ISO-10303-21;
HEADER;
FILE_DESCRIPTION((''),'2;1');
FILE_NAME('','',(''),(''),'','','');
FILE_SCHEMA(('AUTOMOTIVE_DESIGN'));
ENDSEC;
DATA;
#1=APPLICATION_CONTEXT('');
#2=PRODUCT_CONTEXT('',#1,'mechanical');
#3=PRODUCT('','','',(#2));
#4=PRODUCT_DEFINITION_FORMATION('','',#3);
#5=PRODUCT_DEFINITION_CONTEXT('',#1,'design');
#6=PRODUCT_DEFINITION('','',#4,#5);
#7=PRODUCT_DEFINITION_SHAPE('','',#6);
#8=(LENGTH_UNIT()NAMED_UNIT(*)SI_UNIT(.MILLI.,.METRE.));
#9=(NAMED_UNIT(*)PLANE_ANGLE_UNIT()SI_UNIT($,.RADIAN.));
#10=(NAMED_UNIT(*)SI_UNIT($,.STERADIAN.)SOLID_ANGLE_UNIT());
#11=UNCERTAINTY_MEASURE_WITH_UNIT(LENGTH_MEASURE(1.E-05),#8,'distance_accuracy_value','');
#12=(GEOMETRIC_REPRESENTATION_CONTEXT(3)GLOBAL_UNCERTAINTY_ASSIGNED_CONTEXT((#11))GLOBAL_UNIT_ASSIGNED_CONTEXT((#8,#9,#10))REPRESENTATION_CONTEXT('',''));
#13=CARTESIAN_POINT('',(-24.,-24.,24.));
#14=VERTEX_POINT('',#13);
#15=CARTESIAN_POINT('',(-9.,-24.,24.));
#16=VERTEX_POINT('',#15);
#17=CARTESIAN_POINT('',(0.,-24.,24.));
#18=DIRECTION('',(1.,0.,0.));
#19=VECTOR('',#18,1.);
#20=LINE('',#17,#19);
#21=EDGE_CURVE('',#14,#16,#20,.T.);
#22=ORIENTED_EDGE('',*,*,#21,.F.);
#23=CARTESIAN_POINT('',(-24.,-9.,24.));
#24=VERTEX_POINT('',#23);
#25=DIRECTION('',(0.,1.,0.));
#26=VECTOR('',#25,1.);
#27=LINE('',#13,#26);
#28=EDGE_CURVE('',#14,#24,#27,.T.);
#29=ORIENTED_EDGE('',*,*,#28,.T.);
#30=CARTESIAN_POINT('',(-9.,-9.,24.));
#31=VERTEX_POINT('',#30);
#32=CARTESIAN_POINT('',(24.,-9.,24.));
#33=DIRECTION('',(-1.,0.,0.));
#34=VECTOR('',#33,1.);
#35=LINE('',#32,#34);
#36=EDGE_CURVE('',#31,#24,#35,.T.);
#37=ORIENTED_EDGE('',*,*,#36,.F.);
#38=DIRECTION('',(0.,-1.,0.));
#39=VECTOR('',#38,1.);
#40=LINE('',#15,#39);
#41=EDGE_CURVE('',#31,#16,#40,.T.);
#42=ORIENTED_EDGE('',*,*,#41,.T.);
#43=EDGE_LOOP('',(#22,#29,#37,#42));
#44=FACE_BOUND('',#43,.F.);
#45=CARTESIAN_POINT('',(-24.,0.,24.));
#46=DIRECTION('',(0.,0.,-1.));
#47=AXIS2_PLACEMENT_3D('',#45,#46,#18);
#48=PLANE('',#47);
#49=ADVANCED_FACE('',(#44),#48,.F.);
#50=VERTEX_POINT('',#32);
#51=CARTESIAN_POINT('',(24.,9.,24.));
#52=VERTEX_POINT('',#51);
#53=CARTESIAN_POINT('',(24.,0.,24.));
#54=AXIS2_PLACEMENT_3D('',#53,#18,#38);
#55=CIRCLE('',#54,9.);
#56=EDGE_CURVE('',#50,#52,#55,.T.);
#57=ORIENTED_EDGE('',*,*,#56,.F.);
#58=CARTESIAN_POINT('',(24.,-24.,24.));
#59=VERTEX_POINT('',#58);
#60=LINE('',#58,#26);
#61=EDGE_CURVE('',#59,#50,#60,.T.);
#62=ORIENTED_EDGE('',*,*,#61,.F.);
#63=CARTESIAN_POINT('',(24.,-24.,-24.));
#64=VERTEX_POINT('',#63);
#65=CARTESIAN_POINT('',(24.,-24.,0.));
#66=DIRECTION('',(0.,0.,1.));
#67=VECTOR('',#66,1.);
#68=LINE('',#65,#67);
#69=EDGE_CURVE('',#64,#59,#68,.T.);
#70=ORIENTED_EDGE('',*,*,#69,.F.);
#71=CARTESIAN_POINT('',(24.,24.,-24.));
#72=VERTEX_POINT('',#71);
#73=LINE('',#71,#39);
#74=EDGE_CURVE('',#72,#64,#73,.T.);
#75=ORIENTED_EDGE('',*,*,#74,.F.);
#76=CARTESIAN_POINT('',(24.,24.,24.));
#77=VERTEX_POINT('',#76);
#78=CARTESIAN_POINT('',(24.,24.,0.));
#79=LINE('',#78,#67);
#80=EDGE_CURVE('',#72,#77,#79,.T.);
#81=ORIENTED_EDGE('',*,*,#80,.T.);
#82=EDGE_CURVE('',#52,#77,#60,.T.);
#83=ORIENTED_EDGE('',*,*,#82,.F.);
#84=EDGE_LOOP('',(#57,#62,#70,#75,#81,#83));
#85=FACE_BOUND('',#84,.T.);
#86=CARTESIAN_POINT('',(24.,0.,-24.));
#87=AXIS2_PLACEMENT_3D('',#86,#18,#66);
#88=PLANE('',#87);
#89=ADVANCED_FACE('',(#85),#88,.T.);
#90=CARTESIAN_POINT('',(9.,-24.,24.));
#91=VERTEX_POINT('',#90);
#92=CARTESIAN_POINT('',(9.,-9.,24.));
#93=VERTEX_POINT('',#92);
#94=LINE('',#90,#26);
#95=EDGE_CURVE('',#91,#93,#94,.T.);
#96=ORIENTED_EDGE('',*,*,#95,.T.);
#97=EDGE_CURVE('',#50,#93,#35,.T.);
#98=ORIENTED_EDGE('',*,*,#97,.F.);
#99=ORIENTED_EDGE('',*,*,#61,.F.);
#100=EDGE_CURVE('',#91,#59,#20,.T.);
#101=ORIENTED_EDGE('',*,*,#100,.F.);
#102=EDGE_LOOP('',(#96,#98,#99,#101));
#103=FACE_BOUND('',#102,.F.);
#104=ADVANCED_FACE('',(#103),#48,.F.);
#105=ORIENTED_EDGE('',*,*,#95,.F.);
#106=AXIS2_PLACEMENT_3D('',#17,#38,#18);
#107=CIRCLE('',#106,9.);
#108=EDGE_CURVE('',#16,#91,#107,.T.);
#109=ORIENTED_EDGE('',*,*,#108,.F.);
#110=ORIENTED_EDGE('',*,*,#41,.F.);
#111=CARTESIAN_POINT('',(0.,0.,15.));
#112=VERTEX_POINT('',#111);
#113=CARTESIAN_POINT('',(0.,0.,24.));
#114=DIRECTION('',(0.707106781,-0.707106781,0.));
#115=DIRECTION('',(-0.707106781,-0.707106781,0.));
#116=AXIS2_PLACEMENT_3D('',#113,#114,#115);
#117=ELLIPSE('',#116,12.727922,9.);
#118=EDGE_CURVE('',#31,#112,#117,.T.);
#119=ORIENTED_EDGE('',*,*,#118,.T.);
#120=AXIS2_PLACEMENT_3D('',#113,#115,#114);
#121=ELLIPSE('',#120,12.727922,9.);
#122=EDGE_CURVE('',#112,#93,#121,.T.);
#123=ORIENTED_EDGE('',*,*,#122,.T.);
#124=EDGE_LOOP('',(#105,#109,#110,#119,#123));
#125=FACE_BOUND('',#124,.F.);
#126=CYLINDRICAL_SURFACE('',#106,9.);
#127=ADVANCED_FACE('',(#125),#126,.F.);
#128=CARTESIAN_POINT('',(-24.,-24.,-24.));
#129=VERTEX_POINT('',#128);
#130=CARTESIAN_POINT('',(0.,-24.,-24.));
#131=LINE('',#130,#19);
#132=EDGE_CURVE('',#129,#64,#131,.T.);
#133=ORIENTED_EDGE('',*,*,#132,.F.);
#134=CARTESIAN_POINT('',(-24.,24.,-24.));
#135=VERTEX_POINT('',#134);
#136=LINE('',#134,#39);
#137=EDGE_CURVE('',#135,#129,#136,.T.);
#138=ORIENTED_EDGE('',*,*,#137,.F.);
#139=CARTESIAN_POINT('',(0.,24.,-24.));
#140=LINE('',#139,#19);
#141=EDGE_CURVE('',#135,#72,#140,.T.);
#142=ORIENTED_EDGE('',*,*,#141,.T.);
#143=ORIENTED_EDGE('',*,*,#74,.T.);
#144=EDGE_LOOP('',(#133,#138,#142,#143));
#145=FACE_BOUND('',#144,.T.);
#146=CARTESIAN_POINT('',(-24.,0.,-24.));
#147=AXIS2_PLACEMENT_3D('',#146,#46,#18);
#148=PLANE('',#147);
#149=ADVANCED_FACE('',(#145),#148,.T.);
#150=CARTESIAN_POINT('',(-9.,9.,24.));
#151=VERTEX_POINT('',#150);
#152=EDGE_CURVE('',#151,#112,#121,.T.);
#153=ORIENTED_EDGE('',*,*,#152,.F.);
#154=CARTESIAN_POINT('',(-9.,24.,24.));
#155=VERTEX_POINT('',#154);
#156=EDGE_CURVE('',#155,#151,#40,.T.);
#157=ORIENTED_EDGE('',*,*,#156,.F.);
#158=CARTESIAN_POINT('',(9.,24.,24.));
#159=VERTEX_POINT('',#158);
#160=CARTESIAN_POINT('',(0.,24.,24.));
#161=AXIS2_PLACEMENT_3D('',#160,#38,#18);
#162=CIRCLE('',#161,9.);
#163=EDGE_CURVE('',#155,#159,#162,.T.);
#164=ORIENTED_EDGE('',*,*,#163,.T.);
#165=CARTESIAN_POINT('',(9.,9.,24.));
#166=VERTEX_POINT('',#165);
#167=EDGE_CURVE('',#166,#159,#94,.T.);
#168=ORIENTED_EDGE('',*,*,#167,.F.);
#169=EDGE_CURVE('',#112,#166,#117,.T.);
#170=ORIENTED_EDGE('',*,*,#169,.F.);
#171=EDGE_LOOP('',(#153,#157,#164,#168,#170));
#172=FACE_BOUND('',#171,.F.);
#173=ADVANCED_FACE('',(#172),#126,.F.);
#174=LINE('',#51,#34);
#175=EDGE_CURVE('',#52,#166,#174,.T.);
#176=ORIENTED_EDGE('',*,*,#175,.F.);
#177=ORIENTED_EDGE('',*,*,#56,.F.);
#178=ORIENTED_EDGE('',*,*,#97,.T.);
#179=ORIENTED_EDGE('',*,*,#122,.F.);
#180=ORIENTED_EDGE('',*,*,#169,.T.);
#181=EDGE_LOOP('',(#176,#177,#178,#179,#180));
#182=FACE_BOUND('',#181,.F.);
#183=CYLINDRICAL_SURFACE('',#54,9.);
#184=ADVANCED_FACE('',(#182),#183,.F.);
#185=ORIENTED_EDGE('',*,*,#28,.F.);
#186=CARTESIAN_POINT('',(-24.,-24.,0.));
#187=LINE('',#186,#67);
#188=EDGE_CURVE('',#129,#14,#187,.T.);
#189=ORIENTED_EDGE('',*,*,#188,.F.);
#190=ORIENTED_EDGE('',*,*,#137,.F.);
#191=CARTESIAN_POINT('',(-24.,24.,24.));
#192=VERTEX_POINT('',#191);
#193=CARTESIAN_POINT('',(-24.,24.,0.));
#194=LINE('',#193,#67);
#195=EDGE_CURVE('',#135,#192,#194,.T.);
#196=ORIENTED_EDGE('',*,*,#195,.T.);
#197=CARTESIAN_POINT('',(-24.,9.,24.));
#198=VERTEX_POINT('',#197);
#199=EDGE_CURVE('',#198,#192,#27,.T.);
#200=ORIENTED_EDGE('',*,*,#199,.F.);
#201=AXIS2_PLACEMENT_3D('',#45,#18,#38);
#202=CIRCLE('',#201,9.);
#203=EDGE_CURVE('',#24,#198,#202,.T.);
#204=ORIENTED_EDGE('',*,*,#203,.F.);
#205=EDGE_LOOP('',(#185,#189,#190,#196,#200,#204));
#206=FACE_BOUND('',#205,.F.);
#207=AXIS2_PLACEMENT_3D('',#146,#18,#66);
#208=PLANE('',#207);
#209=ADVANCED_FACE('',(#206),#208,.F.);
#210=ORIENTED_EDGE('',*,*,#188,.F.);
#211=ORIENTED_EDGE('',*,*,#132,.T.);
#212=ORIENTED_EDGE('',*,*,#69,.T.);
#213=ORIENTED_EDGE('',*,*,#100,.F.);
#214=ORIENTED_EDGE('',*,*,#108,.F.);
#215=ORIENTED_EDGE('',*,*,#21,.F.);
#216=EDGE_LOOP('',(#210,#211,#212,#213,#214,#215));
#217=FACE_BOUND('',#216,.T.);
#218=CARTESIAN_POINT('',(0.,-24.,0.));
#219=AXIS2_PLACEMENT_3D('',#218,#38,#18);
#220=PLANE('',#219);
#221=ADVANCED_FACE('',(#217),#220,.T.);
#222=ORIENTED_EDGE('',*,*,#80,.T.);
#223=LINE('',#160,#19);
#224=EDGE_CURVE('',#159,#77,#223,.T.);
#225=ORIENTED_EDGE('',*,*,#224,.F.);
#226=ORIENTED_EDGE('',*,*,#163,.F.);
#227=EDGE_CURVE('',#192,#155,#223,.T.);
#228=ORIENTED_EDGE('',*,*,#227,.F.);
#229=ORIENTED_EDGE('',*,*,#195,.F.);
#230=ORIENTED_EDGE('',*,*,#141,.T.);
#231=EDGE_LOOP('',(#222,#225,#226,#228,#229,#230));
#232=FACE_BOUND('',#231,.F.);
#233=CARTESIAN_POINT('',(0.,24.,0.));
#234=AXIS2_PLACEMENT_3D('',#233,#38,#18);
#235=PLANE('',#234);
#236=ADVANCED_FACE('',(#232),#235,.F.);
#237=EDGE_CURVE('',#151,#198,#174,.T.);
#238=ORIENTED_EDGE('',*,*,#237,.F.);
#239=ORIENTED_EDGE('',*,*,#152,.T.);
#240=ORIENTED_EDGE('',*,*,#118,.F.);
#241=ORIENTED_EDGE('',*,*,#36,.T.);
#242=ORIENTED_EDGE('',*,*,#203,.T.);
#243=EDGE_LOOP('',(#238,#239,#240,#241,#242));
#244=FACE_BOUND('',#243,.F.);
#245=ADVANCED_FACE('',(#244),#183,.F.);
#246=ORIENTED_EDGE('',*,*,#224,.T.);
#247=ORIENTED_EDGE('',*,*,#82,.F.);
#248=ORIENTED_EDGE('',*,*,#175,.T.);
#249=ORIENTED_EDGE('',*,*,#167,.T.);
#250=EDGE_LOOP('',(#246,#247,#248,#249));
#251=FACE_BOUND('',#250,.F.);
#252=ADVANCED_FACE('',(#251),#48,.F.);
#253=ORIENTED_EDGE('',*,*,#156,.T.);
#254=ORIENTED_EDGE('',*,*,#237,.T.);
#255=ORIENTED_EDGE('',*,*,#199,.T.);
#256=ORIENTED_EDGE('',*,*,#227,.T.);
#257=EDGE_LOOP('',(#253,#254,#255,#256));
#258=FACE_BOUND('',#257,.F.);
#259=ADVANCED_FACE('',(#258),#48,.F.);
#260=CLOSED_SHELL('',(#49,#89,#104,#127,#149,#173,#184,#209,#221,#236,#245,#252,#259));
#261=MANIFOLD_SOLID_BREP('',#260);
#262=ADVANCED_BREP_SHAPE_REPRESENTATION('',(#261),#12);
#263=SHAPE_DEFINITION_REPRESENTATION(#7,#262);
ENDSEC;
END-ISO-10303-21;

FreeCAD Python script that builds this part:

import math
import FreeCAD as App
import Part
import Sketcher

V = App.Vector
Q = App.Units.Quantity


def add_polygon(sketch, points):
    """Adds a closed chain of lines whose ends are joined by coincident constraints."""
    first, n = sketch.GeometryCount, len(points)
    for a, b in zip(points, points[1:] + points[:1]):
        sketch.addGeometry(Part.LineSegment(App.Vector(*a, 0), App.Vector(*b, 0)), False)
    for i in range(n):
        sketch.addConstraint(Sketcher.Constraint("Coincident", first + i, 2, first + (i + 1) % n, 1))

doc = App.newDocument("Part")
params = doc.addObject("Spreadsheet::Sheet", "Params")
for row, (alias, value) in enumerate([
    ("sketch1_width", "48 mm"),
    ("pad1_length", "48 mm"),
    ("sketch2_diameter", "18 mm"),
    ("pocket1_length", "48 mm"),
    ("sketch3_radius", "9 mm"),
    ("pocket2_length", "48 mm"),
], start=1):
    params.set(f"A{row}", alias)
    params.set(f"B{row}", "=" + value)
    params.setAlias(f"B{row}", alias)

body = doc.addObject("PartDesign::Body", "Body")

# Sketch on XZ plane
sketch1 = body.newObject("Sketcher::SketchObject", "Sketch")
sketch1.AttachmentSupport = (doc.getObject("XZ_Plane"), [""])
sketch1.MapMode = "FlatFace"
add_polygon(sketch1, [(-24, 24), (-24, -24), (24, -24), (24, 24)])  # lines 0-3
sketch1.addConstraint(Sketcher.Constraint("Vertical", 0))
sketch1.addConstraint(Sketcher.Constraint("Horizontal", 1))
sketch1.addConstraint(Sketcher.Constraint("Vertical", 2))
sketch1.addConstraint(Sketcher.Constraint("Horizontal", 3))
sketch1.addConstraint(Sketcher.Constraint("Symmetric", 0, 2, 2, 2, -1, 1))
sketch1.addConstraint(Sketcher.Constraint("Equal", 3, 0))
sketch1.addConstraint(Sketcher.Constraint("DistanceX", 1, 1, 1, 2, Q("48 mm")))
sketch1.setExpression("Constraints[10]", "Params.sketch1_width")
pad1 = body.newObject("PartDesign::Pad", "Pad")
pad1.Profile = sketch1
pad1.setExpression("Length", "Params.pad1_length")
pad1.Midplane = True

# Sketch on XZ plane
sketch2 = body.newObject("Sketcher::SketchObject", "Sketch001")
sketch2.AttachmentSupport = (doc.getObject("XZ_Plane"), [""])
sketch2.MapMode = "FlatFace"
sketch2.AttachmentOffset = App.Placement(V(0, 0, 24), App.Rotation())
sketch2.addGeometry(Part.Circle(V(0, 24, 0), V(0, 0, 1), 9), False)
sketch2.addConstraint(Sketcher.Constraint("PointOnObject", 0, 3, -2))
sketch2.addConstraint(Sketcher.Constraint("Diameter", 0, Q("18 mm")))
sketch2.addConstraint(Sketcher.Constraint("DistanceY", -1, 1, 0, 3, Q("24 mm")))
sketch2.setExpression("Constraints[1]", "Params.sketch2_diameter")
pocket1 = body.newObject("PartDesign::Pocket", "Pocket")
pocket1.Profile = sketch2
pocket1.setExpression("Length", "Params.pocket1_length")

# Sketch on YZ plane
sketch3 = body.newObject("Sketcher::SketchObject", "Sketch002")
sketch3.AttachmentSupport = (doc.getObject("YZ_Plane"), [""])
sketch3.MapMode = "FlatFace"
sketch3.AttachmentOffset = App.Placement(V(0, 0, 24), App.Rotation())
sketch3.addGeometry(Part.ArcOfCircle(Part.Circle(V(0, 24, 0), V(0, 0, 1), 9), math.radians(180), math.radians(360)), False)
sketch3.addGeometry(Part.LineSegment(V(9, 24, 0), V(-9, 24, 0)), False)
sketch3.addConstraint(Sketcher.Constraint("Coincident", 0, 1, 1, 2))
sketch3.addConstraint(Sketcher.Constraint("Coincident", 1, 1, 0, 2))
sketch3.addConstraint(Sketcher.Constraint("Horizontal", 1))
sketch3.addConstraint(Sketcher.Constraint("PointOnObject", 0, 3, -2))
sketch3.addConstraint(Sketcher.Constraint("Radius", 0, Q("9 mm")))
sketch3.addConstraint(Sketcher.Constraint("DistanceY", -1, 1, 0, 3, Q("24 mm")))
sketch3.addConstraint(Sketcher.Constraint("DistanceY", -1, 1, 0, 1, Q("24 mm")))
sketch3.setExpression("Constraints[4]", "Params.sketch3_radius")
pocket2 = body.newObject("PartDesign::Pocket", "Pocket001")
pocket2.Profile = sketch3
pocket2.setExpression("Length", "Params.pocket2_length")

doc.recompute()
